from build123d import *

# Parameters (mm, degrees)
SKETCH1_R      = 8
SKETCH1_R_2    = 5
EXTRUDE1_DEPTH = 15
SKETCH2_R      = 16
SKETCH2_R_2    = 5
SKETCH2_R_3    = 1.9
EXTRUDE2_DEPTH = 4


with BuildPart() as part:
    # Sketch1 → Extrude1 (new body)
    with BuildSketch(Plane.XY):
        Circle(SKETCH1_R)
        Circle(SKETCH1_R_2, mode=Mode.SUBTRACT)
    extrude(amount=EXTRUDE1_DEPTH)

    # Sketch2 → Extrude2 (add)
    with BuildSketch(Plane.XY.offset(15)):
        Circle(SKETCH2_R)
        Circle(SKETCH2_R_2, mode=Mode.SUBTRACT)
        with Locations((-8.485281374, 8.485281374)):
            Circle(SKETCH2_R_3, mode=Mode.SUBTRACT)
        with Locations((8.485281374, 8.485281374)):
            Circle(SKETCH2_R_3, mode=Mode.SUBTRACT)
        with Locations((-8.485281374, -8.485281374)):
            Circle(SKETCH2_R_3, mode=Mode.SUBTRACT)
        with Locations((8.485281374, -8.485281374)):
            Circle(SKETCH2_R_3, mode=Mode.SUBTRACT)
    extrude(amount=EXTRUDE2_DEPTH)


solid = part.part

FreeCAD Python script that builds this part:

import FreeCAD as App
import Part
import Sketcher
Q = App.Units.Quantity

doc = App.newDocument("Part")
body = doc.addObject("PartDesign::Body", "Body")

# Sketch on XY plane
sketch1 = body.newObject("Sketcher::SketchObject", "Sketch")
sketch1.AttachmentSupport = (doc.getObject("XY_Plane"), [""])
sketch1.MapMode = "FlatFace"
sketch1.addGeometry([
    Part.Circle(App.Vector(0, 0, 0), App.Vector(0, 0, 1), 8),
    Part.Circle(App.Vector(0, 0, 0), App.Vector(0, 0, 1), 5),
], False)
sketch1.addConstraint([
    Sketcher.Constraint("Coincident", 0, 3, -1, 1),
    Sketcher.Constraint("Coincident", 1, 3, -1, 1),
    Sketcher.Constraint("Diameter", 0, Q("16 mm")),
    Sketcher.Constraint("Diameter", 1, Q("10 mm")),
])
pad1 = body.newObject("PartDesign::Pad", "Pad")
pad1.Profile = sketch1
pad1.Length = 15

# Sketch on XY plane
sketch2 = body.newObject("Sketcher::SketchObject", "Sketch001")
sketch2.AttachmentSupport = (doc.getObject("XY_Plane"), [""])
sketch2.MapMode = "FlatFace"
sketch2.AttachmentOffset = App.Placement(App.Vector(0, 0, 15), App.Rotation())
sketch2.addGeometry([
    Part.Circle(App.Vector(0, 0, 0), App.Vector(0, 0, 1), 16),  # 0
    Part.Circle(App.Vector(-8.5, -8.5, 0), App.Vector(0, 0, 1), 1.9),  # 1
    Part.Circle(App.Vector(0, 0, 0), App.Vector(0, 0, 1), 5),  # 2
    Part.Circle(App.Vector(8.5, -8.5, 0), App.Vector(0, 0, 1), 1.9),  # 3
    Part.Circle(App.Vector(-8.5, 8.5, 0), App.Vector(0, 0, 1), 1.9),  # 4
    Part.Circle(App.Vector(8.5, 8.5, 0), App.Vector(0, 0, 1), 1.9),  # 5
], False)
sketch2.addConstraint([
    Sketcher.Constraint("Coincident", 0, 3, -1, 1),
    Sketcher.Constraint("Coincident", 2, 3, -1, 1),
    Sketcher.Constraint("Equal", 1, 3),
    Sketcher.Constraint("Equal", 3, 4),
    Sketcher.Constraint("Equal", 4, 5),
    Sketcher.Constraint("Symmetric", 3, 3, 4, 3, -1, 1),
    Sketcher.Constraint("Symmetric", 1, 3, 5, 3, -1, 1),
    Sketcher.Constraint("Symmetric", 1, 3, 3, 3, -2),
    Sketcher.Constraint("Diameter", 0, Q("32 mm")),
    Sketcher.Constraint("Diameter", 2, Q("10 mm")),
    Sketcher.Constraint("Diameter", 1, Q("3.8 mm")),
    Sketcher.Constraint("DistanceX", 1, 3, -1, 1, Q("8.485281 mm")),
    Sketcher.Constraint("DistanceY", 1, 3, -1, 1, Q("8.485281 mm")),
])
pad2 = body.newObject("PartDesign::Pad", "Pad001")
pad2.Profile = sketch2
pad2.Length = 4

doc.recompute()
